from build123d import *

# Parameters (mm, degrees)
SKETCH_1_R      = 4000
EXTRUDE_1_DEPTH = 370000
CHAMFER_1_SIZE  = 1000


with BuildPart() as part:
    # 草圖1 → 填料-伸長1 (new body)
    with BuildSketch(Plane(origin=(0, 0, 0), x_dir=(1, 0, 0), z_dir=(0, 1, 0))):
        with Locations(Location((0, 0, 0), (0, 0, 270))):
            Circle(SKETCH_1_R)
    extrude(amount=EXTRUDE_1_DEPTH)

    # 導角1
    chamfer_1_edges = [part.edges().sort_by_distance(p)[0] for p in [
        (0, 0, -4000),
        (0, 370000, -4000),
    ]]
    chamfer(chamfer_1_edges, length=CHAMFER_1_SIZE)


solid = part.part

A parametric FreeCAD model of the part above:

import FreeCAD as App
import Part
import Sketcher
from FreeCAD import Vector


def edges_at(feature, points):
    """Names of the edges that pass closest to the given points."""
    edges = feature.Shape.Edges
    near = lambda p: min(range(len(edges)), key=lambda i: edges[i].distToShape(Part.Vertex(*p))[0])
    return sorted({f"Edge{near(p) + 1}" for p in points})

doc = App.newDocument("Part")
body = doc.addObject("PartDesign::Body", "Body")

# Sketch on XZ plane
sketch1 = doc.addObject("Sketcher::SketchObject", "Sketch")
body.addObject(sketch1)
sketch1.AttachmentSupport = (doc.XZ_Plane, [""])
sketch1.MapMode = "FlatFace"
sketch1.addGeometry(Part.Circle(Vector(0, 0, 0), Vector(0, 0, 1), 4000), False)
sketch1.addConstraint([
    Sketcher.Constraint("Coincident", 0, 3, -1, 1),
    Sketcher.Constraint("Diameter", 0, 8000.0),
])
pad1 = doc.addObject("PartDesign::Pad", "Pad")
body.addObject(pad1)
pad1.Profile = sketch1
pad1.Length = 370000
pad1.Reversed = True
doc.recompute()

chamfer = doc.addObject("PartDesign::Chamfer", "Chamfer")
body.addObject(chamfer)
chamfer.Base = (pad1, edges_at(pad1, [(0, 0, -4000), (0, 370000, -4000)]))
chamfer.Size = 1000

doc.recompute()
